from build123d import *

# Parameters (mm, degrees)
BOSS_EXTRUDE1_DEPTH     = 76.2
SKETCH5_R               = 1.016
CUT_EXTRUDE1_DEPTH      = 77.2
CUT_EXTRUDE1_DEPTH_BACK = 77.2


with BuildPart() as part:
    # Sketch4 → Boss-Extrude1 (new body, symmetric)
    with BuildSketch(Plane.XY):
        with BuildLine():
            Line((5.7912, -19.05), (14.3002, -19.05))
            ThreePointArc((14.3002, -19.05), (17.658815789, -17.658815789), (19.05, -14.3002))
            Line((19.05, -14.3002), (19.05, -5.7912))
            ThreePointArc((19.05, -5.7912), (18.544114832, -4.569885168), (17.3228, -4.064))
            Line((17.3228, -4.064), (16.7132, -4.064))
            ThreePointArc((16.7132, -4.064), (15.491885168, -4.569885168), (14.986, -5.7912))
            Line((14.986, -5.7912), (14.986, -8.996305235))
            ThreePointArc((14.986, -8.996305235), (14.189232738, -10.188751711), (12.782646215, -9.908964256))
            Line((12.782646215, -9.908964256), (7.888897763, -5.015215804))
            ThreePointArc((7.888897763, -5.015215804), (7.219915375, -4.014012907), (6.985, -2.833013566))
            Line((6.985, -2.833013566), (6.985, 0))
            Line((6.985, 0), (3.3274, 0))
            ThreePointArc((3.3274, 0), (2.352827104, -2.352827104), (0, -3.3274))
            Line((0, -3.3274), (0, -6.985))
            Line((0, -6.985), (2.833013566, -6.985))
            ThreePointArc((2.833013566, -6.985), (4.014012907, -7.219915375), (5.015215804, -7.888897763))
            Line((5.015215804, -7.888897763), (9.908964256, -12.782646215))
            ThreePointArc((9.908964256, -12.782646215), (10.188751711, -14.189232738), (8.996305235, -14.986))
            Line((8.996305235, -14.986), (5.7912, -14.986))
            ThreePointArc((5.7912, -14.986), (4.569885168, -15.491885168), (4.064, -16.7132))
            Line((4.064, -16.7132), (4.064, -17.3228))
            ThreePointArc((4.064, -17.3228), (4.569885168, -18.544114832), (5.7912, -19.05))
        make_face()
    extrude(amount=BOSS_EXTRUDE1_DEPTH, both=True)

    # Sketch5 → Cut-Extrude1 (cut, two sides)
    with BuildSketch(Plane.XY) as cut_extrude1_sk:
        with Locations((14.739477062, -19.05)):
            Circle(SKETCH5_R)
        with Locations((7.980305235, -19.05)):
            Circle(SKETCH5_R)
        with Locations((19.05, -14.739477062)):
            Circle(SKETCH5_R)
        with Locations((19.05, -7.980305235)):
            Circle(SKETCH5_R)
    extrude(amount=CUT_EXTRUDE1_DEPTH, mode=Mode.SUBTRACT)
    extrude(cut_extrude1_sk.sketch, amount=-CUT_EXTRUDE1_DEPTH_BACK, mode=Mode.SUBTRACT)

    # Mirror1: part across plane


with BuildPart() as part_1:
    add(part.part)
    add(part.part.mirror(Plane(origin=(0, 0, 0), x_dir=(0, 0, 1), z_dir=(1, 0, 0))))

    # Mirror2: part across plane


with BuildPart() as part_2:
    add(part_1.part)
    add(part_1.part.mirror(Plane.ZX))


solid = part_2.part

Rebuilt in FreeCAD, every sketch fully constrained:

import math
import FreeCAD as App
import Part
import Sketcher

V = App.Vector
Q = App.Units.Quantity

doc = App.newDocument("Part")
params = doc.addObject("Spreadsheet::Sheet", "Params")
for row, (alias, value) in enumerate([
    ("sketch1_radius", "0.187 in"),
    ("sketch1_radius2", "0.068 in"),
    ("sketch1_radius3", "0.131 in"),
    ("sketch1_width", "0.335 in"),
    ("sketch1_width2", "0.024 in"),
    ("pad1_length", "6 in"),
    ("sketch2_diameter", "0.08 in"),
], start=1):
    params.set(f"A{row}", alias)
    params.set(f"B{row}", "=" + value)
    params.setAlias(f"B{row}", alias)

body = doc.addObject("PartDesign::Body", "Body")

# Sketch on XY plane
sketch1 = body.newObject("Sketcher::SketchObject", "Sketch")
sketch1.AttachmentSupport = (doc.getObject("XY_Plane"), [""])
sketch1.MapMode = "FlatFace"
sketch1.addGeometry(Part.LineSegment(V(5.7912, -19.05, 0), V(14.3002, -19.05, 0)), False)
sketch1.addGeometry(Part.ArcOfCircle(Part.Circle(V(14.3002, -14.3002, 0), V(0, 0, 1), 4.7498), math.radians(-90), math.radians(0)), False)
sketch1.addGeometry(Part.LineSegment(V(19.05, -14.3002, 0), V(19.05, -5.7912, 0)), False)
sketch1.addGeometry(Part.ArcOfCircle(Part.Circle(V(17.3228, -5.7912, 0), V(0, 0, 1), 1.7272), math.radians(0), math.radians(90)), False)
sketch1.addGeometry(Part.LineSegment(V(17.3228, -4.064, 0), V(16.7132, -4.064, 0)), False)
sketch1.addGeometry(Part.ArcOfCircle(Part.Circle(V(16.7132, -5.7912, 0), V(0, 0, 1), 1.7272), math.radians(90), math.radians(180)), False)
sketch1.addGeometry(Part.LineSegment(V(14.986, -5.7912, 0), V(14.986, -8.996305, 0)), False)
sketch1.addGeometry(Part.ArcOfCircle(Part.Circle(V(13.695305, -8.996305, 0), V(0, 0, 1), 1.290695), math.radians(-135), math.radians(0)), False)
sketch1.addGeometry(Part.LineSegment(V(12.782646, -9.908964, 0), V(7.888898, -5.015216, 0)), False)
sketch1.addGeometry(Part.ArcOfCircle(Part.Circle(V(10.0711, -2.833014, 0), V(0, 0, 1), 3.0861), math.radians(-180), math.radians(-135)), False)
sketch1.addGeometry(Part.LineSegment(V(6.985, -2.833014, 0), V(6.985, 0, 0)), False)
sketch1.addGeometry(Part.LineSegment(V(6.985, 0, 0), V(3.3274, 0, 0)), False)
sketch1.addGeometry(Part.ArcOfCircle(Part.Circle(V(0, 0, 0), V(0, 0, 1), 3.3274), math.radians(-90), math.radians(0)), False)
sketch1.addGeometry(Part.LineSegment(V(0, -3.3274, 0), V(0, -6.985, 0)), False)
sketch1.addGeometry(Part.LineSegment(V(0, -6.985, 0), V(2.833014, -6.985, 0)), False)
sketch1.addGeometry(Part.ArcOfCircle(Part.Circle(V(2.833014, -10.0711, 0), V(0, 0, 1), 3.0861), math.radians(45), math.radians(90)), False)
sketch1.addGeometry(Part.LineSegment(V(5.015216, -7.888898, 0), V(9.908964, -12.782646, 0)), False)
sketch1.addGeometry(Part.ArcOfCircle(Part.Circle(V(8.996305, -13.695305, 0), V(0, 0, 1), 1.290695), math.radians(-90), math.radians(45)), False)
sketch1.addGeometry(Part.LineSegment(V(8.996305, -14.986, 0), V(5.7912, -14.986, 0)), False)
sketch1.addGeometry(Part.ArcOfCircle(Part.Circle(V(5.7912, -16.7132, 0), V(0, 0, 1), 1.7272), math.radians(90), math.radians(180)), False)
sketch1.addGeometry(Part.LineSegment(V(4.064, -16.7132, 0), V(4.064, -17.3228, 0)), False)
sketch1.addGeometry(Part.ArcOfCircle(Part.Circle(V(5.7912, -17.3228, 0), V(0, 0, 1), 1.7272), math.radians(-180), math.radians(-90)), False)
sketch1.addConstraint(Sketcher.Constraint("Tangent", 0, 2, 1, 1))
sketch1.addConstraint(Sketcher.Constraint("Tangent", 1, 2, 2, 1))
sketch1.addConstraint(Sketcher.Constraint("Tangent", 2, 2, 3, 1))
sketch1.addConstraint(Sketcher.Constraint("Tangent", 3, 2, 4, 1))
sketch1.addConstraint(Sketcher.Constraint("Tangent", 4, 2, 5, 1))
sketch1.addConstraint(Sketcher.Constraint("Tangent", 5, 2, 6, 1))
sketch1.addConstraint(Sketcher.Constraint("Tangent", 6, 2, 7, 2))
sketch1.addConstraint(Sketcher.Constraint("Tangent", 7, 1, 8, 1))
sketch1.addConstraint(Sketcher.Constraint("Tangent", 8, 2, 9, 2))
sketch1.addConstraint(Sketcher.Constraint("Tangent", 9, 1, 10, 1))
sketch1.addConstraint(Sketcher.Constraint("Coincident", 10, 2, 11, 1))
sketch1.addConstraint(Sketcher.Constraint("Coincident", 11, 2, 12, 2))
sketch1.addConstraint(Sketcher.Constraint("Coincident", 12, 1, 13, 1))
sketch1.addConstraint(Sketcher.Constraint("Coincident", 13, 2, 14, 1))
sketch1.addConstraint(Sketcher.Constraint("Tangent", 14, 2, 15, 2))
sketch1.addConstraint(Sketcher.Constraint("Tangent", 15, 1, 16, 1))
sketch1.addConstraint(Sketcher.Constraint("Tangent", 16, 2, 17, 2))
sketch1.addConstraint(Sketcher.Constraint("Tangent", 17, 1, 18, 1))
sketch1.addConstraint(Sketcher.Constraint("Tangent", 18, 2, 19, 1))
sketch1.addConstraint(Sketcher.Constraint("Tangent", 19, 2, 20, 1))
sketch1.addConstraint(Sketcher.Constraint("Tangent", 20, 2, 21, 1))
sketch1.addConstraint(Sketcher.Constraint("Tangent", 21, 2, 0, 1))
sketch1.addConstraint(Sketcher.Constraint("Horizontal", 0))
sketch1.addConstraint(Sketcher.Constraint("Vertical", 2))
sketch1.addConstraint(Sketcher.Constraint("Horizontal", 4))
sketch1.addConstraint(Sketcher.Constraint("Vertical", 6))
sketch1.addConstraint(Sketcher.Constraint("Vertical", 10))
sketch1.addConstraint(Sketcher.Constraint("Horizontal", 11))
sketch1.addConstraint(Sketcher.Constraint("Vertical", 13))
sketch1.addConstraint(Sketcher.Constraint("Horizontal", 14))
sketch1.addConstraint(Sketcher.Constraint("Horizontal", 18))
sketch1.addConstraint(Sketcher.Constraint("Vertical", 20))
sketch1.addConstraint(Sketcher.Constraint("Coincident", 12, 3, -1, 1))
sketch1.addConstraint(Sketcher.Constraint("Equal", 3, 5))
sketch1.addConstraint(Sketcher.Constraint("Equal", 9, 15))
sketch1.addConstraint(Sketcher.Constraint("Equal", 7, 17))
sketch1.addConstraint(Sketcher.Constraint("Equal", 5, 19))
sketch1.addConstraint(Sketcher.Constraint("Equal", 19, 21))
sketch1.addConstraint(Sketcher.Constraint("PointOnObject", 10, 2, -1))
sketch1.addConstraint(Sketcher.Constraint("PointOnObject", 12, 1, -2))
sketch1.addConstraint(Sketcher.Constraint("Parallel", 8, 16))
sketch1.addConstraint(Sketcher.Constraint("Equal", 0, 2))
sketch1.addConstraint(Sketcher.Constraint("Equal", 18, 6))
sketch1.addConstraint(Sketcher.Constraint("Equal", 14, 10))
sketch1.addConstraint(Sketcher.Constraint("Equal", 11, 13))
sketch1.addConstraint(Sketcher.Constraint("Equal", 4, 20))
sketch1.addConstraint(Sketcher.Constraint("Equal", 8, 16))
sketch1.addConstraint(Sketcher.Constraint("Radius", 1, Q("0.187 in")))
sketch1.addConstraint(Sketcher.Constraint("Radius", 3, Q("0.068 in")))
sketch1.addConstraint(Sketcher.Constraint("Radius", 12, Q("0.131 in")))
sketch1.addConstraint(Sketcher.Constraint("Radius", 9, Q("0.1215 in")))
sketch1.addConstraint(Sketcher.Constraint("DistanceX", 0, 1, 0, 2, Q("0.335 in")))
sketch1.addConstraint(Sketcher.Constraint("DistanceX", 4, 2, 4, 1, Q("0.024 in")))
sketch1.addConstraint(Sketcher.Constraint("DistanceX", 11, 2, 11, 1, Q("0.144 in")))
sketch1.addConstraint(Sketcher.Constraint("DistanceY", 0, 2, -1, 1, Q("0.75 in")))
sketch1.addConstraint(Sketcher.Constraint("DistanceX", 17, 3, 7, 3, Q("0.185 in")))
sketch1.addConstraint(Sketcher.Constraint("Radius", 7, 1.290695))
sketch1.setExpression("Constraints[47]", "Params.sketch1_radius")
sketch1.setExpression("Constraints[48]", "Params.sketch1_radius2")
sketch1.setExpression("Constraints[49]", "Params.sketch1_radius3")
sketch1.setExpression("Constraints[51]", "Params.sketch1_width")
sketch1.setExpression("Constraints[52]", "Params.sketch1_width2")
pad1 = body.newObject("PartDesign::Pad", "Pad")
pad1.Profile = sketch1
pad1.setExpression("Length", "Params.pad1_length")
pad1.Midplane = True

# Sketch on XY plane
sketch2 = body.newObject("Sketcher::SketchObject", "Sketch001")
sketch2.AttachmentSupport = (doc.getObject("XY_Plane"), [""])
sketch2.MapMode = "FlatFace"
sketch2.addGeometry(Part.Circle(V(14.739477, -19.05, 0), V(0, 0, 1), 1.016), False)
sketch2.addGeometry(Part.Circle(V(7.980305, -19.05, 0), V(0, 0, 1), 1.016), False)
sketch2.addGeometry(Part.Circle(V(19.05, -14.739477, 0), V(0, 0, 1), 1.016), False)
sketch2.addGeometry(Part.Circle(V(19.05, -7.980305, 0), V(0, 0, 1), 1.016), False)
sketch2.addConstraint(Sketcher.Constraint("Equal", 0, 1))
sketch2.addConstraint(Sketcher.Constraint("Equal", 1, 2))
sketch2.addConstraint(Sketcher.Constraint("Equal", 2, 3))
sketch2.addConstraint(Sketcher.Constraint("Horizontal", 0, 3, 1, 3))
sketch2.addConstraint(Sketcher.Constraint("Vertical", 2, 3, 3, 3))
sketch2.addConstraint(Sketcher.Constraint("Diameter", 0, Q("0.08 in")))
sketch2.addConstraint(Sketcher.Constraint("DistanceY", 0, 3, -1, 1, Q("0.75 in")))
sketch2.addConstraint(Sketcher.Constraint("DistanceX", -1, 1, 2, 3, Q("0.75 in")))
sketch2.addConstraint(Sketcher.Constraint("DistanceX", 1, 3, 0, 3, 6.759172))
sketch2.addConstraint(Sketcher.Constraint("DistanceY", 2, 3, 3, 3, 6.759172))
sketch2.addConstraint(Sketcher.Constraint("DistanceX", -1, 1, 0, 3, 14.739477))
sketch2.addConstraint(Sketcher.Constraint("DistanceY", 2, 3, -1, 1, 14.739477))
sketch2.setExpression("Constraints[5]", "Params.sketch2_diameter")
pocket1 = body.newObject("PartDesign::Pocket", "Pocket")
pocket1.Profile = sketch2
pocket1.Type = "ThroughAll"
pocket1.Midplane = True
body2 = doc.addObject("PartDesign::Body", "Body001")
doc.recompute()

body2.BaseFeature = body
doc.recompute()

mirroring = doc.addObject("Part::Mirroring", "Mirroring")
mirroring.Source = body
mirroring.Base = V(0, 0, 0)
mirroring.Normal = V(1, 0, 0)
body3 = doc.addObject("PartDesign::Body", "Body002")
body3.BaseFeature = mirroring
boolean = body2.newObject("PartDesign::Boolean", "Boolean")
boolean.Type = "Fuse"
boolean.addObjects([body3])
doc.recompute()
body4 = doc.addObject("PartDesign::Body", "Body003")
doc.recompute()

body4.BaseFeature = body2
doc.recompute()

mirroring2 = doc.addObject("Part::Mirroring", "Mirroring001")
mirroring2.Source = body2
mirroring2.Base = V(0, 0, 0)
mirroring2.Normal = V(0, 1, 0)
body5 = doc.addObject("PartDesign::Body", "Body004")
body5.BaseFeature = mirroring2
boolean2 = body4.newObject("PartDesign::Boolean", "Boolean001")
boolean2.Type = "Fuse"
boolean2.addObjects([body5])
doc.recompute()
mirroring.Visibility = False
mirroring2.Visibility = False

doc.recompute()
